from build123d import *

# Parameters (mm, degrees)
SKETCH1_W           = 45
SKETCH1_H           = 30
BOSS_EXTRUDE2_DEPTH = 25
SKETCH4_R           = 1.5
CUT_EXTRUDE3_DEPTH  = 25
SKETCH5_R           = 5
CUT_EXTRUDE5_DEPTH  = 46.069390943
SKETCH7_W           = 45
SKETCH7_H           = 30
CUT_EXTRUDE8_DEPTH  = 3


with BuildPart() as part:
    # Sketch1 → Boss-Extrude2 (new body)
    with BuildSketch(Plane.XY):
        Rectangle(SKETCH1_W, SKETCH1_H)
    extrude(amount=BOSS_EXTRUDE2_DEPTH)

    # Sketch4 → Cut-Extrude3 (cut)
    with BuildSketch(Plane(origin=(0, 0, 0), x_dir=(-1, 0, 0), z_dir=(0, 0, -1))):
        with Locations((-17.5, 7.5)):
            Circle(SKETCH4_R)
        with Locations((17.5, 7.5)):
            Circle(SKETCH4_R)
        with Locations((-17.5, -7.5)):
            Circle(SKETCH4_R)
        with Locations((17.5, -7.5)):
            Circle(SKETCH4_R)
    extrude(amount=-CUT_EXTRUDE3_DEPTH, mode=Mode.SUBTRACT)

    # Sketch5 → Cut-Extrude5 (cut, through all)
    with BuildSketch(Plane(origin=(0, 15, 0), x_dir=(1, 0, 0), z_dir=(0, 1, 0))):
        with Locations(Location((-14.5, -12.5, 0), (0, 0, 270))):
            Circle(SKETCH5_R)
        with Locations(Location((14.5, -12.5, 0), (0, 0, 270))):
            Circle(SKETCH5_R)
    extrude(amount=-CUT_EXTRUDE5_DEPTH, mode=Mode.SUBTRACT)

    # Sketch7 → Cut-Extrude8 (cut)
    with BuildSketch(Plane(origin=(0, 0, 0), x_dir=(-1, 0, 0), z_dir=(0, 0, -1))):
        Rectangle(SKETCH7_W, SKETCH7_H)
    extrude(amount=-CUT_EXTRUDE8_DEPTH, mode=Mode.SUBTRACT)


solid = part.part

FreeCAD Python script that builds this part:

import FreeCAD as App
import Part
import Sketcher
Q = App.Units.Quantity


def add_polygon(sketch, points):
    """Adds a closed chain of lines whose ends are joined by coincident constraints."""
    first, n = sketch.GeometryCount, len(points)
    for a, b in zip(points, points[1:] + points[:1]):
        sketch.addGeometry(Part.LineSegment(App.Vector(*a, 0), App.Vector(*b, 0)), False)
    for i in range(n):
        sketch.addConstraint(Sketcher.Constraint("Coincident", first + i, 2, first + (i + 1) % n, 1))

doc = App.newDocument("Part")
body = doc.addObject("PartDesign::Body", "Body")

# Sketch on XY plane
sketch1 = body.newObject("Sketcher::SketchObject", "Sketch")
sketch1.AttachmentSupport = (doc.getObject("XY_Plane"), [""])
sketch1.MapMode = "FlatFace"
add_polygon(sketch1, [(-22, 15), (-22, -15), (22, -15), (22, 15)])  # lines 0-3
sketch1.addConstraint(Sketcher.Constraint("Vertical", 0))
sketch1.addConstraint(Sketcher.Constraint("Horizontal", 1))
sketch1.addConstraint(Sketcher.Constraint("Vertical", 2))
sketch1.addConstraint(Sketcher.Constraint("Horizontal", 3))
sketch1.addConstraint(Sketcher.Constraint("Symmetric", 0, 2, 2, 2, -1, 1))
sketch1.addConstraint(Sketcher.Constraint("DistanceX", 1, 1, 1, 2, Q("45 mm")))
sketch1.addConstraint(Sketcher.Constraint("DistanceY", 0, 2, 0, 1, Q("30 mm")))
pad1 = body.newObject("PartDesign::Pad", "Pad")
pad1.Profile = sketch1
pad1.Length = 25

# Sketch on XY plane
sketch2 = body.newObject("Sketcher::SketchObject", "Sketch001")
sketch2.AttachmentSupport = (doc.getObject("XY_Plane"), [""])
sketch2.MapMode = "FlatFace"
sketch2.addGeometry(Part.Circle(App.Vector(17.5, 7.5, 0), App.Vector(0, 0, 1), 1.5), False)
sketch2.addGeometry(Part.Circle(App.Vector(-17.5, 7.5, 0), App.Vector(0, 0, 1), 1.5), False)
sketch2.addGeometry(Part.Circle(App.Vector(17.5, -7.5, 0), App.Vector(0, 0, 1), 1.5), False)
sketch2.addGeometry(Part.Circle(App.Vector(-17.5, -7.5, 0), App.Vector(0, 0, 1), 1.5), False)
sketch2.addConstraint(Sketcher.Constraint("Equal", 0, 1))
sketch2.addConstraint(Sketcher.Constraint("Equal", 1, 2))
sketch2.addConstraint(Sketcher.Constraint("Equal", 2, 3))
sketch2.addConstraint(Sketcher.Constraint("Symmetric", 1, 3, 2, 3, -1, 1))
sketch2.addConstraint(Sketcher.Constraint("Symmetric", 0, 3, 3, 3, -1, 1))
sketch2.addConstraint(Sketcher.Constraint("Symmetric", 0, 3, 1, 3, -2))
sketch2.addConstraint(Sketcher.Constraint("Diameter", 0, Q("3 mm")))
sketch2.addConstraint(Sketcher.Constraint("DistanceX", 1, 3, 0, 3, Q("35 mm")))
sketch2.addConstraint(Sketcher.Constraint("DistanceY", 2, 3, 0, 3, Q("15 mm")))
pocket1 = body.newObject("PartDesign::Pocket", "Pocket")
pocket1.Profile = sketch2
pocket1.Length = 25
pocket1.Reversed = True

# Sketch on XZ plane
sketch3 = body.newObject("Sketcher::SketchObject", "Sketch002")
sketch3.AttachmentSupport = (doc.getObject("XZ_Plane"), [""])
sketch3.MapMode = "FlatFace"
sketch3.AttachmentOffset = App.Placement(App.Vector(0, 0, -15), App.Rotation())
sketch3.addGeometry(Part.Circle(App.Vector(-14, 12, 0), App.Vector(0, 0, 1), 5), False)
sketch3.addGeometry(Part.Circle(App.Vector(14, 12, 0), App.Vector(0, 0, 1), 5), False)
sketch3.addConstraint(Sketcher.Constraint("Equal", 0, 1))
sketch3.addConstraint(Sketcher.Constraint("Symmetric", 0, 3, 1, 3, -2))
sketch3.addConstraint(Sketcher.Constraint("Diameter", 0, Q("10 mm")))
sketch3.addConstraint(Sketcher.Constraint("DistanceX", 0, 3, 1, 3, Q("29 mm")))
sketch3.addConstraint(Sketcher.Constraint("DistanceY", -1, 1, 0, 3, Q("12.5 mm")))
pocket2 = body.newObject("PartDesign::Pocket", "Pocket001")
pocket2.Profile = sketch3
pocket2.Type = "ThroughAll"
pocket2.Reversed = True

# Sketch on XY plane
sketch4 = body.newObject("Sketcher::SketchObject", "Sketch003")
sketch4.AttachmentSupport = (doc.getObject("XY_Plane"), [""])
sketch4.MapMode = "FlatFace"
add_polygon(sketch4, [(22, 15), (22, -15), (-22, -15), (-22, 15)])  # lines 0-3
sketch4.addConstraint(Sketcher.Constraint("Vertical", 0))
sketch4.addConstraint(Sketcher.Constraint("Horizontal", 1))
sketch4.addConstraint(Sketcher.Constraint("Vertical", 2))
sketch4.addConstraint(Sketcher.Constraint("Horizontal", 3))
sketch4.addConstraint(Sketcher.Constraint("Symmetric", 0, 2, 2, 2, -1, 1))
sketch4.addConstraint(Sketcher.Constraint("DistanceX", 1, 2, 1, 1, Q("45 mm")))
sketch4.addConstraint(Sketcher.Constraint("DistanceY", 0, 2, 0, 1, Q("30 mm")))
pocket3 = body.newObject("PartDesign::Pocket", "Pocket002")
pocket3.Profile = sketch4
pocket3.Length = 3
pocket3.Reversed = True

doc.recompute()
